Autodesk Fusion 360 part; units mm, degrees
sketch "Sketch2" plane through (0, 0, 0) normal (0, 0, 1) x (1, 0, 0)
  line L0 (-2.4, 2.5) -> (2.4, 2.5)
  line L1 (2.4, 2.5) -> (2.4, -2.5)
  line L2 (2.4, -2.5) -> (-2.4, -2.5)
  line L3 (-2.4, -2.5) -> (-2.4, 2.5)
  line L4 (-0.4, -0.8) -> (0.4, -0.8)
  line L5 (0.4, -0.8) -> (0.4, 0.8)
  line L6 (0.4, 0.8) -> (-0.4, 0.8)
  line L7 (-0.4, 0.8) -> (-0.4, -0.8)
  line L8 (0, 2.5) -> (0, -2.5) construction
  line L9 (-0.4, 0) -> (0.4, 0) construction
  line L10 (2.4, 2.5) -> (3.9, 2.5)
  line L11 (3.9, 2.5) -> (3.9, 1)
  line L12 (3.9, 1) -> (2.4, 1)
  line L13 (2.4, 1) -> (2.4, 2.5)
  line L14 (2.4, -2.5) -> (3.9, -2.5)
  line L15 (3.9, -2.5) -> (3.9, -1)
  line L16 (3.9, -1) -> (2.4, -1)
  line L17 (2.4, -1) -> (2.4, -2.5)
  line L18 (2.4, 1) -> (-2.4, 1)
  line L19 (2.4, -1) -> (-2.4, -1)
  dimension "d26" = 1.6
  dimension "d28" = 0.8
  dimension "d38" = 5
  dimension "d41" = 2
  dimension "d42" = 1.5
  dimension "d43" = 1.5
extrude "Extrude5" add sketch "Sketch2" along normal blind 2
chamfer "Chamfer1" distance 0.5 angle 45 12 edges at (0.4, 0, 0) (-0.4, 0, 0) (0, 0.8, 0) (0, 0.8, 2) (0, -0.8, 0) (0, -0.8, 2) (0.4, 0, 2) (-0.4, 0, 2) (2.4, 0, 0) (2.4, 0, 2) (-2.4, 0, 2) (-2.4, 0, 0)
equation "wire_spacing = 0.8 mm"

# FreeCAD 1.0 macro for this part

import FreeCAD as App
import Part
import Sketcher


def edges_at(feature, points):
    """Names of the edges that pass closest to the given points."""
    edges = feature.Shape.Edges
    near = lambda p: min(range(len(edges)), key=lambda i: edges[i].distToShape(Part.Vertex(*p))[0])
    return sorted({f"Edge{near(p) + 1}" for p in points})


def add_polygon(sketch, points):
    """Adds a closed chain of lines whose ends are joined by coincident constraints."""
    first, n = sketch.GeometryCount, len(points)
    for a, b in zip(points, points[1:] + points[:1]):
        sketch.addGeometry(Part.LineSegment(App.Vector(*a, 0), App.Vector(*b, 0)), False)
    for i in range(n):
        sketch.addConstraint(Sketcher.Constraint("Coincident", first + i, 2, first + (i + 1) % n, 1))

doc = App.newDocument("Part")
body = doc.addObject("PartDesign::Body", "Body")

# Sketch on XY plane
sketch1 = doc.addObject("Sketcher::SketchObject", "Sketch")
body.addObject(sketch1)
sketch1.AttachmentSupport = (doc.XY_Plane, [""])
sketch1.MapMode = "FlatFace"
add_polygon(sketch1, [(-2.4, 2.5), (-2.4, -2.5), (3.9, -2.5), (3.9, -1), (2.4, -1), (2.4, 1), (3.9, 1), (3.9, 2.5)])  # lines 0-7
add_polygon(sketch1, [(-0.4, -0.8), (-0.4, 0.8), (0.4, 0.8), (0.4, -0.8)])  # lines 8-11
sketch1.addConstraint([
    Sketcher.Constraint("Vertical", 0),
    Sketcher.Constraint("Horizontal", 1),
    Sketcher.Constraint("Vertical", 2),
    Sketcher.Constraint("Horizontal", 3),
    Sketcher.Constraint("Vertical", 4),
    Sketcher.Constraint("Horizontal", 5),
    Sketcher.Constraint("Vertical", 6),
    Sketcher.Constraint("Horizontal", 7),
    Sketcher.Constraint("Vertical", 8),
    Sketcher.Constraint("Horizontal", 9),
    Sketcher.Constraint("Vertical", 10),
    Sketcher.Constraint("Horizontal", 11),
    Sketcher.Constraint("Symmetric", 8, 2, 10, 2, -1, 1),
    Sketcher.Constraint("Symmetric", 2, 2, 5, 2, -1),
    Sketcher.Constraint("Equal", 5, 2),
    Sketcher.Constraint("Equal", 2, 6),
    Sketcher.Constraint("DistanceY", 0, 2, 0, 1, 5.0),
    Sketcher.Constraint("DistanceY", 4, 1, 4, 2, 2.0),
    Sketcher.Constraint("DistanceX", 9, 1, 9, 2, 0.8),
    Sketcher.Constraint("DistanceY", 8, 1, 8, 2, 1.6),
    Sketcher.Constraint("DistanceX", 7, 2, 8, 2, 2.0),
    Sketcher.Constraint("DistanceX", 9, 2, 4, 2, 2.0),
])
pad1 = doc.addObject("PartDesign::Pad", "Pad")
body.addObject(pad1)
pad1.Profile = sketch1
pad1.Length = 2
doc.recompute()

chamfer = doc.addObject("PartDesign::Chamfer", "Chamfer")
body.addObject(chamfer)
chamfer.Base = (pad1, edges_at(pad1, [
    (0.4, 0, 0),
    (-0.4, 0, 0),
    (0, 0.8, 0),
    (0, 0.8, 2),
    (0, -0.8, 0),
    (0, -0.8, 2),
    (0.4, 0, 2),
    (-0.4, 0, 2),
    (2.4, 0, 0),
    (2.4, 0, 2),
    (-2.4, 0, 2),
    (-2.4, 0, 0),
]))
chamfer.Size = 0.5

doc.recompute()
